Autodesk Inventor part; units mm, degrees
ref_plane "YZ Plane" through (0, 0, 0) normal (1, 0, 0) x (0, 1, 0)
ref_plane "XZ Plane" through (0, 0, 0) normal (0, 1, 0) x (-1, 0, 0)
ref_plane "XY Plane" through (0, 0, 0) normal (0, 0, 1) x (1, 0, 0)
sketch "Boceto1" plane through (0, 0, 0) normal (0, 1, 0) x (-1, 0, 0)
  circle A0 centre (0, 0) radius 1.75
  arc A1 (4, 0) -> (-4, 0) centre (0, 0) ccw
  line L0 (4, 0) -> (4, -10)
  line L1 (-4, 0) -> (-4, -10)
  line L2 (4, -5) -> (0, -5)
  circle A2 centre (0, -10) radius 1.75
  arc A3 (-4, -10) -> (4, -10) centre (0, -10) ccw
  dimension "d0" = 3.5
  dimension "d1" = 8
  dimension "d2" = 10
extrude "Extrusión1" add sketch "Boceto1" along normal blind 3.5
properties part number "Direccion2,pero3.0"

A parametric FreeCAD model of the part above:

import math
import FreeCAD as App
import Part
import Sketcher

V = App.Vector

doc = App.newDocument("Part")
body = doc.addObject("PartDesign::Body", "Body")

# Sketch on XZ plane
sketch1 = body.newObject("Sketcher::SketchObject", "Sketch")
sketch1.AttachmentSupport = (doc.getObject("XZ_Plane"), [""])
sketch1.MapMode = "FlatFace"
sketch1.addGeometry(Part.LineSegment(V(-4, -10, 0), V(-4, 0, 0)), False)
sketch1.addGeometry(Part.ArcOfCircle(Part.Circle(V(0, 0, 0), V(0, 0, 1), 4), math.radians(0), math.radians(180)), False)
sketch1.addGeometry(Part.LineSegment(V(4, 0, 0), V(4, -10, 0)), False)
sketch1.addGeometry(Part.ArcOfCircle(Part.Circle(V(0, -10, 0), V(0, 0, 1), 4), math.radians(180), math.radians(360)), False)
sketch1.addGeometry(Part.Circle(V(0, -10, 0), V(0, 0, 1), 1.8), False)
sketch1.addGeometry(Part.Circle(V(0, 0, 0), V(0, 0, 1), 1.8), False)
sketch1.addConstraint(Sketcher.Constraint("Tangent", 0, 2, 1, 2))
sketch1.addConstraint(Sketcher.Constraint("Tangent", 1, 1, 2, 1))
sketch1.addConstraint(Sketcher.Constraint("Tangent", 2, 2, 3, 2))
sketch1.addConstraint(Sketcher.Constraint("Tangent", 3, 1, 0, 1))
sketch1.addConstraint(Sketcher.Constraint("Vertical", 0))
sketch1.addConstraint(Sketcher.Constraint("Vertical", 2))
sketch1.addConstraint(Sketcher.Constraint("Coincident", 1, 3, -1, 1))
sketch1.addConstraint(Sketcher.Constraint("Coincident", 5, 3, -1, 1))
sketch1.addConstraint(Sketcher.Constraint("Coincident", 4, 3, 3, 3))
sketch1.addConstraint(Sketcher.Constraint("Equal", 4, 5))
sketch1.addConstraint(Sketcher.Constraint("Radius", 1, 4.0))
sketch1.addConstraint(Sketcher.Constraint("Diameter", 4, 3.5))
sketch1.addConstraint(Sketcher.Constraint("DistanceY", 0, 1, 0, 2, 10.0))
pad1 = body.newObject("PartDesign::Pad", "Pad")
pad1.Profile = sketch1
pad1.Length = 3.5
pad1.Reversed = True

doc.recompute()
